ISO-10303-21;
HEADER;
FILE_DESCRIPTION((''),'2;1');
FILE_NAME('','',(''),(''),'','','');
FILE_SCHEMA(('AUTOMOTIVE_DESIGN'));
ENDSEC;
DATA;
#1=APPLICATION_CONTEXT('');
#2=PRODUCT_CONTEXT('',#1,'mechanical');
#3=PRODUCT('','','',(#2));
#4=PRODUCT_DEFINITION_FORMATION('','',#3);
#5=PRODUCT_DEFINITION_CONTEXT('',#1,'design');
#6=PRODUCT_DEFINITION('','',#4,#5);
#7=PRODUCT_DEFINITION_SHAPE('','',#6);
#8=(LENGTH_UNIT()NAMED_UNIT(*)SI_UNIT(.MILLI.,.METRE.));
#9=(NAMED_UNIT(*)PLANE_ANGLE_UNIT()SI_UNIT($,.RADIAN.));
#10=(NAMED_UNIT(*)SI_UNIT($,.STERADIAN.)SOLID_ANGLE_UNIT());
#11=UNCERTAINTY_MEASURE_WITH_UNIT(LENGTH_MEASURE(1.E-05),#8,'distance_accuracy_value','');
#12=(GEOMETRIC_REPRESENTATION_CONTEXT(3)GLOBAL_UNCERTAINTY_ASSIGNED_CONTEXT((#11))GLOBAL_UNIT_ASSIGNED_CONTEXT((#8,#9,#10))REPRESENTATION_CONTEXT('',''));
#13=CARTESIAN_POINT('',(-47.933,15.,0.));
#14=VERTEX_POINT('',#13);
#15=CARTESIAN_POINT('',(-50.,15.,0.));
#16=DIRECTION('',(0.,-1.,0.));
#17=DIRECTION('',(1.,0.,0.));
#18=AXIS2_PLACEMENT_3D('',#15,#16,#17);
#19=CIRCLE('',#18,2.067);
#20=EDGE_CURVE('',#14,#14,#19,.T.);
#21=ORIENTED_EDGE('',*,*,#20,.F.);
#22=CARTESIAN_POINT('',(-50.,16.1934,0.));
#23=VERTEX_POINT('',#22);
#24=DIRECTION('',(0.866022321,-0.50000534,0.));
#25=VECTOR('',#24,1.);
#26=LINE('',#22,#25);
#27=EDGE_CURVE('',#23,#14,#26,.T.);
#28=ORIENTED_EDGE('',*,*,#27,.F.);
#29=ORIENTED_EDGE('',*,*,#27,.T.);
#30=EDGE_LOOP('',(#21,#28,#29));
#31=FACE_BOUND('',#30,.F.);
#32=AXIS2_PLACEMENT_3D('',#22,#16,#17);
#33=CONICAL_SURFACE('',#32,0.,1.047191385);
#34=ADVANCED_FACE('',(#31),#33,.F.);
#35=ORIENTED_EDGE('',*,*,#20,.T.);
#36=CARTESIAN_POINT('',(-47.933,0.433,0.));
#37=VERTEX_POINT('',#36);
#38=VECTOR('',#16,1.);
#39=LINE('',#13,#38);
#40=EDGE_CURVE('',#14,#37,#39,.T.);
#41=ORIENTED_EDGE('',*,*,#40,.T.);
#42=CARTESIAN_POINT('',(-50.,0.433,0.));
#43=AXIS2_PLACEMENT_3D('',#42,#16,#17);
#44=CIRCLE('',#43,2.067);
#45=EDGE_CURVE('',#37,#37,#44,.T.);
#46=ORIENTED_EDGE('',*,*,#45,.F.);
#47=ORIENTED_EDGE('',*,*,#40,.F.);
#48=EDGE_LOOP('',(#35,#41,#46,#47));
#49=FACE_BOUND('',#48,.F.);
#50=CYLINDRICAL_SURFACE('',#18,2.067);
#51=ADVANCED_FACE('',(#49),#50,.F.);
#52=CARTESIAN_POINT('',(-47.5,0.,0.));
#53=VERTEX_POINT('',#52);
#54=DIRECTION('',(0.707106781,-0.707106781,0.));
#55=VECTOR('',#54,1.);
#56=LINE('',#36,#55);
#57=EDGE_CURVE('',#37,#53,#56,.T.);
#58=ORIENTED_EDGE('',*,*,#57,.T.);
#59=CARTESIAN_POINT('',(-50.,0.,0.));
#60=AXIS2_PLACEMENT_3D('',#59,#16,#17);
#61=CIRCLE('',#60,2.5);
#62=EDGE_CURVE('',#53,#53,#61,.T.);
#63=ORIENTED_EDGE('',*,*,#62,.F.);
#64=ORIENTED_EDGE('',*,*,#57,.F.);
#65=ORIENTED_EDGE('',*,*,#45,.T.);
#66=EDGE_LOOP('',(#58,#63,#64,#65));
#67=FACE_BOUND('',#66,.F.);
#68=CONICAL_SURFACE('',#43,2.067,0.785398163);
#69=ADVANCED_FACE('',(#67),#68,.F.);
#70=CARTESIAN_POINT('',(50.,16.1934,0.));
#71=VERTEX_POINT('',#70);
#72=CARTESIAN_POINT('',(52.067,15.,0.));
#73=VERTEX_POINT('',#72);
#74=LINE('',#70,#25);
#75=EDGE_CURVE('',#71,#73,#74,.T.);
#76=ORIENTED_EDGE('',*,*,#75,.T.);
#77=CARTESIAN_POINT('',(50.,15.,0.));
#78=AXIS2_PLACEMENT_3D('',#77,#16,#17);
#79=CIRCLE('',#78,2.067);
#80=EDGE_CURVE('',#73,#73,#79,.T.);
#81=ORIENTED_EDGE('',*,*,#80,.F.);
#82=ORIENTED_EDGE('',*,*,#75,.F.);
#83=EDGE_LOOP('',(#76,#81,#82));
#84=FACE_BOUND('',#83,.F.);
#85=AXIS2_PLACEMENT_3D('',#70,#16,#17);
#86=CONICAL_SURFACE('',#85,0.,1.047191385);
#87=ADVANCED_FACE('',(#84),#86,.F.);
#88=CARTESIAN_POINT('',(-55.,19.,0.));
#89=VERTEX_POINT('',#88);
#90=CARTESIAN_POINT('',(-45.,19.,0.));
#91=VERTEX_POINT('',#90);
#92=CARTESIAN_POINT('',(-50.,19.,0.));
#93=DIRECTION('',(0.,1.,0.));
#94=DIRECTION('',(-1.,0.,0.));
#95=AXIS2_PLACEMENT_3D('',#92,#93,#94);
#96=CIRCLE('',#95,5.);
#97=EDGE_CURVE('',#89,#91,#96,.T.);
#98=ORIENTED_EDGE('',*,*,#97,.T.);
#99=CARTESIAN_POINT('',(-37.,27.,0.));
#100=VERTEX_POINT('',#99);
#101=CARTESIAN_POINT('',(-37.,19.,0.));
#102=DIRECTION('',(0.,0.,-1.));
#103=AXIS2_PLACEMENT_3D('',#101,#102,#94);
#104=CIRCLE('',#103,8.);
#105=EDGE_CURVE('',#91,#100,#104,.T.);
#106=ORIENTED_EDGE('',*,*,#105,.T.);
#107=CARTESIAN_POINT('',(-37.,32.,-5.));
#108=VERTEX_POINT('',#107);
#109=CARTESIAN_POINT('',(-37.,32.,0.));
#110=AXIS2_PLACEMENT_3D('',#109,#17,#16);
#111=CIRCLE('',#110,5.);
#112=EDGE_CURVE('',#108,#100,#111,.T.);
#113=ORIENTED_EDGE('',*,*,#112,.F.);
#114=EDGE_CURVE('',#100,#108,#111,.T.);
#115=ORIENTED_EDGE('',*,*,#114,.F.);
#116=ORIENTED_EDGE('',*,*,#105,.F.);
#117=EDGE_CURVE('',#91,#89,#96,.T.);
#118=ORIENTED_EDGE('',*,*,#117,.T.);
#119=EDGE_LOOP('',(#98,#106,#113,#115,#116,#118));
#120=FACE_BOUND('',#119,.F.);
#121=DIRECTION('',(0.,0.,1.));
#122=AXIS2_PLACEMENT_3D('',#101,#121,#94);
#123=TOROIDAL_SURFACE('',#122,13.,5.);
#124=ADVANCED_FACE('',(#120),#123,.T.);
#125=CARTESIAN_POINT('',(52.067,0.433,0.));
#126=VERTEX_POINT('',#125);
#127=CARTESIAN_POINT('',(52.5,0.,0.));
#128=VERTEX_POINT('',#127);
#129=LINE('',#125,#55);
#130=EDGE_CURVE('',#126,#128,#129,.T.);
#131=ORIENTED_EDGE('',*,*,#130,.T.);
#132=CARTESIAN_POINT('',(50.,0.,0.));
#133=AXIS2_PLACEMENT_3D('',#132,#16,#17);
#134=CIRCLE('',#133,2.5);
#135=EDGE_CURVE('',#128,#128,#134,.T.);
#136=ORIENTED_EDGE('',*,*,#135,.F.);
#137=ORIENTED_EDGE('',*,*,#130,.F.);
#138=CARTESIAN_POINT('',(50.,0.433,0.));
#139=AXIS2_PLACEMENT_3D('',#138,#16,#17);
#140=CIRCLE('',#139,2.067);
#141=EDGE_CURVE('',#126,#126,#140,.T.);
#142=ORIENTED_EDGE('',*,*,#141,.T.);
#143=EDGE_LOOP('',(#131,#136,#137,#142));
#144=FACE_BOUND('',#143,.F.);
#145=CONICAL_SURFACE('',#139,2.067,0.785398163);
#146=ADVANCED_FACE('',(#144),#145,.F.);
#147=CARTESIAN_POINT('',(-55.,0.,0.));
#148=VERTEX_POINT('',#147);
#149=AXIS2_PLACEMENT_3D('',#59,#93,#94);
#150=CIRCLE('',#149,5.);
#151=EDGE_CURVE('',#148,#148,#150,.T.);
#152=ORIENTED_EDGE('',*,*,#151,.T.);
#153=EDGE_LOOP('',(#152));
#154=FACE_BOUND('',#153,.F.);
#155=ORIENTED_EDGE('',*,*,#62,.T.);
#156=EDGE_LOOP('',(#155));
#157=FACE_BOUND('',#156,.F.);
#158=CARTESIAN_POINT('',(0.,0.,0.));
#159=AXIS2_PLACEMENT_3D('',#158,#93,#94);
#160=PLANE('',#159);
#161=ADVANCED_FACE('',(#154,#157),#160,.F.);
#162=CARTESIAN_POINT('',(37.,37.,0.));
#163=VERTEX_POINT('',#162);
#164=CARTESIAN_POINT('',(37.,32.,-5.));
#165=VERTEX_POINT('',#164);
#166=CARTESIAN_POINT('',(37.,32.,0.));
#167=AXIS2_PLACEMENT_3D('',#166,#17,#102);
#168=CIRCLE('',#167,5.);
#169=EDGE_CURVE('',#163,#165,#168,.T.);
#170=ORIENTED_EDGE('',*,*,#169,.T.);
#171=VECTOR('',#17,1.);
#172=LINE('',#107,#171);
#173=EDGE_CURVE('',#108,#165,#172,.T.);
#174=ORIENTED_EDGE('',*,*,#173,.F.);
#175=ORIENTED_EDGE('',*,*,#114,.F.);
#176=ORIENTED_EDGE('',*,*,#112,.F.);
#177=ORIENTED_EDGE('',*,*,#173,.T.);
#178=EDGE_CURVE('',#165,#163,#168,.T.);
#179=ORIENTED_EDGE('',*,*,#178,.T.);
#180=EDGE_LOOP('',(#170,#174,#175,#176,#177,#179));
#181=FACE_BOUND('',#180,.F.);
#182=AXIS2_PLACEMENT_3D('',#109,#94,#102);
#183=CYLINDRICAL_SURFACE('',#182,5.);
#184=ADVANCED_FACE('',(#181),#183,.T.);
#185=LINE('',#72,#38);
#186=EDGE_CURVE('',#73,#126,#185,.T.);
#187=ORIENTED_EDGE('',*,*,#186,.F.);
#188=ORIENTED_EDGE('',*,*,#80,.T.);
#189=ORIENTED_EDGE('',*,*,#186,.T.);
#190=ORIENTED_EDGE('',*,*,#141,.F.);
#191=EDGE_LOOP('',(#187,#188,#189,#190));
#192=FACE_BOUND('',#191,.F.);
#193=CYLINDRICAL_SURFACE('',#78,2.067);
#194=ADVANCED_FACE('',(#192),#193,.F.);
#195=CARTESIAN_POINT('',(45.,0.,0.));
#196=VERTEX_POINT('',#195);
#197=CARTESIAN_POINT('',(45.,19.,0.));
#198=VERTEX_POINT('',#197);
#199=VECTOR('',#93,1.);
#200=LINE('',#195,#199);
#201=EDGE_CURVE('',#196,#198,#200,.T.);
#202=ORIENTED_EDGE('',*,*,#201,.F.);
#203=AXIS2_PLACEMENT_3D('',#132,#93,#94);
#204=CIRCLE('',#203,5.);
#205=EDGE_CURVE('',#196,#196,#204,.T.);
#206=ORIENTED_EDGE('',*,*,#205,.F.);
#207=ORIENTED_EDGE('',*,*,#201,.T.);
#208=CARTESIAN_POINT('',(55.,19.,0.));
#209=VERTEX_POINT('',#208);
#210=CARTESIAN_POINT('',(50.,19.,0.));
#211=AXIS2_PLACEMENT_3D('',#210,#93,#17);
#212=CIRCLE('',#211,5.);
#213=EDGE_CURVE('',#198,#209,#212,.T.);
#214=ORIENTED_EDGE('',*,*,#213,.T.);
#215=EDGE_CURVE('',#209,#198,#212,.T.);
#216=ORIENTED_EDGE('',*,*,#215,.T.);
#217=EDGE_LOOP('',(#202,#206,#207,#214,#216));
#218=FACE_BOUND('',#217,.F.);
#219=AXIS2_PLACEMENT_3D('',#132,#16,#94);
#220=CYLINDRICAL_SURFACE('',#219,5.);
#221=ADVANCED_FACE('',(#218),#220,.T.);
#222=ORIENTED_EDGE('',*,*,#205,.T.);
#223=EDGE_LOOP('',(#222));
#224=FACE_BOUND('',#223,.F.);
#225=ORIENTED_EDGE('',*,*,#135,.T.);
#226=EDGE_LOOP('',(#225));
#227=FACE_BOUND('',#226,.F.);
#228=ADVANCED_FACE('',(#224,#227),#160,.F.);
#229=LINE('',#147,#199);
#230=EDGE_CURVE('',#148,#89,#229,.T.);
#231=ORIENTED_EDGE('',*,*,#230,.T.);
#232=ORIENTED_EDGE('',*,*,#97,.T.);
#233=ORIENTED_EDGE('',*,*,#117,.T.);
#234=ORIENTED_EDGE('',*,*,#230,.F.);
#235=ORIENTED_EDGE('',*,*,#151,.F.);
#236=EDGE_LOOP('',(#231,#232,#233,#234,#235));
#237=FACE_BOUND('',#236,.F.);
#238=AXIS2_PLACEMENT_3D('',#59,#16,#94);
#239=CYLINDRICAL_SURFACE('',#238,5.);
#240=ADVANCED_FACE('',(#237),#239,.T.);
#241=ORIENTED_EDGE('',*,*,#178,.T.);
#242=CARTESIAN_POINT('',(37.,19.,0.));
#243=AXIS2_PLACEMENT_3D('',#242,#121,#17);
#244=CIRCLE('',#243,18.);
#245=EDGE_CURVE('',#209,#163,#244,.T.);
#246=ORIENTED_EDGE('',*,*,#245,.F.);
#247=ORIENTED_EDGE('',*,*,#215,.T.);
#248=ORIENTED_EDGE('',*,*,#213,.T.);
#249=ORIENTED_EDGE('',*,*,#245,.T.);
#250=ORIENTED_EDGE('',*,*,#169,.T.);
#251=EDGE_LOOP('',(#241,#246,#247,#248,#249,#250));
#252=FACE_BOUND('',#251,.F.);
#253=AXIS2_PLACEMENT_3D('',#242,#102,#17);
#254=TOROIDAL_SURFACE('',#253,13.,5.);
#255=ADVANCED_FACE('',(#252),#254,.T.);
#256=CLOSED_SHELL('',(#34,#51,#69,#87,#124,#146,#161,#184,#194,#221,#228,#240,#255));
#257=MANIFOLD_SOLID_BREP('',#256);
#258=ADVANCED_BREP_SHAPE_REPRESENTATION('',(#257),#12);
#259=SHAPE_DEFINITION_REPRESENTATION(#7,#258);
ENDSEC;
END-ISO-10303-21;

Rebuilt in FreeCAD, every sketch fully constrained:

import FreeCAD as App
import Part
import Sketcher

V = App.Vector
Q = App.Units.Quantity


def add_polygon(sketch, points):
    """Adds a closed chain of lines whose ends are joined by coincident constraints."""
    first, n = sketch.GeometryCount, len(points)
    for a, b in zip(points, points[1:] + points[:1]):
        sketch.addGeometry(Part.LineSegment(App.Vector(*a, 0), App.Vector(*b, 0)), False)
    for i in range(n):
        sketch.addConstraint(Sketcher.Constraint("Coincident", first + i, 2, first + (i + 1) % n, 1))

doc = App.newDocument("Part")
body = doc.addObject("PartDesign::Body", "Body")

sketch1 = body.newObject("Sketcher::SketchObject", "Sketch")
sketch1.AttachmentSupport = (doc.getObject("XZ_Plane"), [""])
sketch1.MapMode = "FlatFace"
sketch1.addGeometry(Part.Circle(V(-50, 0, 0), V(0, 0, 1), 5), False)
sketch1.addConstraint([
    Sketcher.Constraint("PointOnObject", 0, 3, -1),
    Sketcher.Constraint("Diameter", 0, Q("10 mm")),
    Sketcher.Constraint("DistanceX", 0, 3, -1, 1, Q("50 mm")),
])
pad1 = body.newObject("PartDesign::Pad", "Pad")
pad1.Profile = sketch1
pad1.Length = 19
pad1.Reversed = True

sketch2 = body.newObject("Sketcher::SketchObject", "Sketch001")
sketch2.AttachmentSupport = (doc.getObject("XZ_Plane"), [""])
sketch2.MapMode = "FlatFace"
sketch2.AttachmentOffset = App.Placement(V(0, 0, -19), App.Rotation())
sketch2.addGeometry(Part.Circle(V(-50, 0, 0), V(0, 0, 1), 5), False)
sketch2.addGeometry(Part.LineSegment(V(-37, 0, 0), V(-37, -10, 0)), True)
sketch2.addConstraint([
    Sketcher.Constraint("Vertical", 1),
    Sketcher.Constraint("PointOnObject", 0, 3, -1),
    Sketcher.Constraint("PointOnObject", 1, 1, -1),
    Sketcher.Constraint("Diameter", 0, Q("10 mm")),
    Sketcher.Constraint("DistanceY", 1, 2, 1, 1, Q("10 mm")),
    Sketcher.Constraint("DistanceX", 0, 3, -1, 1, Q("50 mm")),
    Sketcher.Constraint("DistanceX", 1, 1, -1, 1, Q("37 mm")),
])
revolution = body.newObject("PartDesign::Revolution", "Revolution")
revolution.Profile = sketch2
revolution.ReferenceAxis = (sketch2, ["Axis0"])
revolution.Angle = 90

sketch3 = body.newObject("Sketcher::SketchObject", "Sketch002")
sketch3.AttachmentSupport = (doc.getObject("YZ_Plane"), [""])
sketch3.MapMode = "FlatFace"
sketch3.AttachmentOffset = App.Placement(V(0, 0, -37), App.Rotation())
sketch3.addGeometry(Part.Circle(V(32, 0, 0), V(0, 0, 1), 5), False)
sketch3.addConstraint([
    Sketcher.Constraint("PointOnObject", 0, 3, -1),
    Sketcher.Constraint("Diameter", 0, Q("10 mm")),
    Sketcher.Constraint("DistanceX", -1, 1, 0, 3, Q("32 mm")),
])
pad2 = body.newObject("PartDesign::Pad", "Pad001")
pad2.Profile = sketch3
pad2.Length = 74

sketch4 = body.newObject("Sketcher::SketchObject", "Sketch003")
sketch4.AttachmentSupport = (doc.getObject("XZ_Plane"), [""])
sketch4.MapMode = "FlatFace"
sketch4.AttachmentOffset = App.Placement(V(0, 0, -19), App.Rotation())
sketch4.addGeometry(Part.Circle(V(50, 0, 0), V(0, 0, 1), 5), False)
sketch4.addGeometry(Part.LineSegment(V(37, 0, 0), V(37, 10, 0)), True)
sketch4.addConstraint([
    Sketcher.Constraint("Vertical", 1),
    Sketcher.Constraint("PointOnObject", 0, 3, -1),
    Sketcher.Constraint("PointOnObject", 1, 1, -1),
    Sketcher.Constraint("Diameter", 0, Q("10 mm")),
    Sketcher.Constraint("DistanceY", 1, 1, 1, 2, Q("10 mm")),
    Sketcher.Constraint("DistanceX", -1, 1, 0, 3, Q("50 mm")),
    Sketcher.Constraint("DistanceX", -1, 1, 1, 1, Q("37 mm")),
])
revolution2 = body.newObject("PartDesign::Revolution", "Revolution001")
revolution2.Profile = sketch4
revolution2.ReferenceAxis = (sketch4, ["Axis0"])
revolution2.Angle = 90

sketch5 = body.newObject("Sketcher::SketchObject", "Sketch004")
sketch5.AttachmentSupport = (doc.getObject("XZ_Plane"), [""])
sketch5.MapMode = "FlatFace"
sketch5.addGeometry(Part.Circle(V(50, 0, 0), V(0, 0, 1), 5), False)
sketch5.addConstraint([
    Sketcher.Constraint("PointOnObject", 0, 3, -1),
    Sketcher.Constraint("Diameter", 0, Q("10 mm")),
    Sketcher.Constraint("DistanceX", -1, 1, 0, 3, Q("50 mm")),
])
pad3 = body.newObject("PartDesign::Pad", "Pad002")
pad3.Profile = sketch5
pad3.Length = 19
pad3.Reversed = True

sketch6 = body.newObject("Sketcher::SketchObject", "Sketch005")
sketch6.AttachmentSupport = (doc.getObject("XY_Plane"), [""])
sketch6.MapMode = "FlatFace"
add_polygon(sketch6, [(-50, 16.1934), (-50, 0), (-47.5, 0), (-47.933, 0.433), (-47.933, 15)])
sketch6.addGeometry(Part.LineSegment(V(-50, 16.1934, 0), V(-50, 0, 0)), True)
sketch6.addConstraint([
    Sketcher.Constraint("Vertical", 0),
    Sketcher.Constraint("Horizontal", 1),
    Sketcher.Constraint("Vertical", 3),
    Sketcher.Constraint("Vertical", 5),
    Sketcher.Constraint("Coincident", 5, 1, 4, 2),
    Sketcher.Constraint("PointOnObject", 0, 2, -1),
    Sketcher.Constraint("PointOnObject", 5, 2, -1),
    Sketcher.Constraint("Angle", 2, Q("135 deg")),
    Sketcher.Constraint("Angle", 4, Q("149.9996 deg")),
    Sketcher.Constraint("DistanceX", 1, 1, 1, 2, Q("2.5 mm")),
    Sketcher.Constraint("DistanceX", 0, 2, -1, 1, Q("50 mm")),
    Sketcher.Constraint("DistanceY", -1, 1, 3, 2, Q("15 mm")),
    Sketcher.Constraint("DistanceY", 3, 1, 3, 2, Q("14.567 mm")),
])
groove = body.newObject("PartDesign::Groove", "Groove")
groove.Profile = sketch6
groove.ReferenceAxis = (sketch6, ["Axis0"])
groove.Angle = 360

sketch7 = body.newObject("Sketcher::SketchObject", "Sketch006")
sketch7.AttachmentSupport = (doc.getObject("XY_Plane"), [""])
sketch7.MapMode = "FlatFace"
add_polygon(sketch7, [(50, 16.1934), (50, 0), (52.5, 0), (52.067, 0.433), (52.067, 15)])
sketch7.addGeometry(Part.LineSegment(V(50, 16.1934, 0), V(50, 0, 0)), True)
sketch7.addConstraint([
    Sketcher.Constraint("Vertical", 0),
    Sketcher.Constraint("Horizontal", 1),
    Sketcher.Constraint("Vertical", 3),
    Sketcher.Constraint("Vertical", 5),
    Sketcher.Constraint("Coincident", 5, 1, 4, 2),
    Sketcher.Constraint("PointOnObject", 0, 2, -1),
    Sketcher.Constraint("PointOnObject", 5, 2, -1),
    Sketcher.Constraint("Angle", 2, Q("135 deg")),
    Sketcher.Constraint("Angle", 4, Q("149.9996 deg")),
    Sketcher.Constraint("DistanceX", 1, 1, 1, 2, Q("2.5 mm")),
    Sketcher.Constraint("DistanceX", -1, 1, 0, 2, Q("50 mm")),
    Sketcher.Constraint("DistanceY", -1, 1, 3, 2, Q("15 mm")),
    Sketcher.Constraint("DistanceY", 3, 1, 3, 2, Q("14.567 mm")),
])
groove2 = body.newObject("PartDesign::Groove", "Groove001")
groove2.Profile = sketch7
groove2.ReferenceAxis = (sketch7, ["Axis0"])
groove2.Angle = 360

doc.recompute()
